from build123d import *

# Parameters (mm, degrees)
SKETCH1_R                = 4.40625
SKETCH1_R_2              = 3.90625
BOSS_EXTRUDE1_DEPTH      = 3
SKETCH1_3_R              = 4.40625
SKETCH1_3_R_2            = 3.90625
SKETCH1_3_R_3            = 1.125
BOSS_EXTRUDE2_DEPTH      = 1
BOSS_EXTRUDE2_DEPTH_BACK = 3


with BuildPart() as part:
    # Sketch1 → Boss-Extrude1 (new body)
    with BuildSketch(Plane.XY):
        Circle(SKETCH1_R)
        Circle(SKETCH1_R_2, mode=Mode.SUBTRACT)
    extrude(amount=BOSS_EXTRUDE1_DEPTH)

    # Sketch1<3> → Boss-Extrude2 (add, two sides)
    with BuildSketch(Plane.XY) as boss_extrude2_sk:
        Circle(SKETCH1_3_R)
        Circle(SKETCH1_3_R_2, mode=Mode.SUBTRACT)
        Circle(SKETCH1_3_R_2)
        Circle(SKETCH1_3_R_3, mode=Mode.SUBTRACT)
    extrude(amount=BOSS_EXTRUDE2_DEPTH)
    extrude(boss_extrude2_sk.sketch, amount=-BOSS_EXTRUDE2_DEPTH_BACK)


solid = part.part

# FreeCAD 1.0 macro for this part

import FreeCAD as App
import Part
import Sketcher

doc = App.newDocument("Part")
body = doc.addObject("PartDesign::Body", "Body")

# Sketch on XY plane
sketch1 = body.newObject("Sketcher::SketchObject", "Sketch")
sketch1.AttachmentSupport = (doc.getObject("XY_Plane"), [""])
sketch1.MapMode = "FlatFace"
sketch1.addGeometry(Part.Circle(App.Vector(0, 0, 0), App.Vector(0, 0, 1), 4.4), False)
sketch1.addGeometry(Part.Circle(App.Vector(0, 0, 0), App.Vector(0, 0, 1), 3.9), False)
sketch1.addConstraint(Sketcher.Constraint("Coincident", 0, 3, -1, 1))
sketch1.addConstraint(Sketcher.Constraint("Coincident", 1, 3, -1, 1))
sketch1.addConstraint(Sketcher.Constraint("Diameter", 0, 8.8125))
sketch1.addConstraint(Sketcher.Constraint("Diameter", 1, 7.8125))
pad1 = body.newObject("PartDesign::Pad", "Pad")
pad1.Profile = sketch1
pad1.Length = 3

# Sketch on XY plane
sketch2 = body.newObject("Sketcher::SketchObject", "Sketch001")
sketch2.AttachmentSupport = (doc.getObject("XY_Plane"), [""])
sketch2.MapMode = "FlatFace"
sketch2.addGeometry(Part.Circle(App.Vector(0, 0, 0), App.Vector(0, 0, 1), 4.4), False)
sketch2.addGeometry(Part.Circle(App.Vector(0, 0, 0), App.Vector(0, 0, 1), 1.1), False)
sketch2.addConstraint(Sketcher.Constraint("Coincident", 0, 3, -1, 1))
sketch2.addConstraint(Sketcher.Constraint("Coincident", 1, 3, -1, 1))
sketch2.addConstraint(Sketcher.Constraint("Diameter", 1, 2.25))
sketch2.addConstraint(Sketcher.Constraint("Diameter", 0, 8.8125))
pad2 = body.newObject("PartDesign::Pad", "Pad001")
pad2.Profile = sketch2
pad2.Type = "TwoLengths"
pad2.Length = 1
pad2.Length2 = 3

doc.recompute()
